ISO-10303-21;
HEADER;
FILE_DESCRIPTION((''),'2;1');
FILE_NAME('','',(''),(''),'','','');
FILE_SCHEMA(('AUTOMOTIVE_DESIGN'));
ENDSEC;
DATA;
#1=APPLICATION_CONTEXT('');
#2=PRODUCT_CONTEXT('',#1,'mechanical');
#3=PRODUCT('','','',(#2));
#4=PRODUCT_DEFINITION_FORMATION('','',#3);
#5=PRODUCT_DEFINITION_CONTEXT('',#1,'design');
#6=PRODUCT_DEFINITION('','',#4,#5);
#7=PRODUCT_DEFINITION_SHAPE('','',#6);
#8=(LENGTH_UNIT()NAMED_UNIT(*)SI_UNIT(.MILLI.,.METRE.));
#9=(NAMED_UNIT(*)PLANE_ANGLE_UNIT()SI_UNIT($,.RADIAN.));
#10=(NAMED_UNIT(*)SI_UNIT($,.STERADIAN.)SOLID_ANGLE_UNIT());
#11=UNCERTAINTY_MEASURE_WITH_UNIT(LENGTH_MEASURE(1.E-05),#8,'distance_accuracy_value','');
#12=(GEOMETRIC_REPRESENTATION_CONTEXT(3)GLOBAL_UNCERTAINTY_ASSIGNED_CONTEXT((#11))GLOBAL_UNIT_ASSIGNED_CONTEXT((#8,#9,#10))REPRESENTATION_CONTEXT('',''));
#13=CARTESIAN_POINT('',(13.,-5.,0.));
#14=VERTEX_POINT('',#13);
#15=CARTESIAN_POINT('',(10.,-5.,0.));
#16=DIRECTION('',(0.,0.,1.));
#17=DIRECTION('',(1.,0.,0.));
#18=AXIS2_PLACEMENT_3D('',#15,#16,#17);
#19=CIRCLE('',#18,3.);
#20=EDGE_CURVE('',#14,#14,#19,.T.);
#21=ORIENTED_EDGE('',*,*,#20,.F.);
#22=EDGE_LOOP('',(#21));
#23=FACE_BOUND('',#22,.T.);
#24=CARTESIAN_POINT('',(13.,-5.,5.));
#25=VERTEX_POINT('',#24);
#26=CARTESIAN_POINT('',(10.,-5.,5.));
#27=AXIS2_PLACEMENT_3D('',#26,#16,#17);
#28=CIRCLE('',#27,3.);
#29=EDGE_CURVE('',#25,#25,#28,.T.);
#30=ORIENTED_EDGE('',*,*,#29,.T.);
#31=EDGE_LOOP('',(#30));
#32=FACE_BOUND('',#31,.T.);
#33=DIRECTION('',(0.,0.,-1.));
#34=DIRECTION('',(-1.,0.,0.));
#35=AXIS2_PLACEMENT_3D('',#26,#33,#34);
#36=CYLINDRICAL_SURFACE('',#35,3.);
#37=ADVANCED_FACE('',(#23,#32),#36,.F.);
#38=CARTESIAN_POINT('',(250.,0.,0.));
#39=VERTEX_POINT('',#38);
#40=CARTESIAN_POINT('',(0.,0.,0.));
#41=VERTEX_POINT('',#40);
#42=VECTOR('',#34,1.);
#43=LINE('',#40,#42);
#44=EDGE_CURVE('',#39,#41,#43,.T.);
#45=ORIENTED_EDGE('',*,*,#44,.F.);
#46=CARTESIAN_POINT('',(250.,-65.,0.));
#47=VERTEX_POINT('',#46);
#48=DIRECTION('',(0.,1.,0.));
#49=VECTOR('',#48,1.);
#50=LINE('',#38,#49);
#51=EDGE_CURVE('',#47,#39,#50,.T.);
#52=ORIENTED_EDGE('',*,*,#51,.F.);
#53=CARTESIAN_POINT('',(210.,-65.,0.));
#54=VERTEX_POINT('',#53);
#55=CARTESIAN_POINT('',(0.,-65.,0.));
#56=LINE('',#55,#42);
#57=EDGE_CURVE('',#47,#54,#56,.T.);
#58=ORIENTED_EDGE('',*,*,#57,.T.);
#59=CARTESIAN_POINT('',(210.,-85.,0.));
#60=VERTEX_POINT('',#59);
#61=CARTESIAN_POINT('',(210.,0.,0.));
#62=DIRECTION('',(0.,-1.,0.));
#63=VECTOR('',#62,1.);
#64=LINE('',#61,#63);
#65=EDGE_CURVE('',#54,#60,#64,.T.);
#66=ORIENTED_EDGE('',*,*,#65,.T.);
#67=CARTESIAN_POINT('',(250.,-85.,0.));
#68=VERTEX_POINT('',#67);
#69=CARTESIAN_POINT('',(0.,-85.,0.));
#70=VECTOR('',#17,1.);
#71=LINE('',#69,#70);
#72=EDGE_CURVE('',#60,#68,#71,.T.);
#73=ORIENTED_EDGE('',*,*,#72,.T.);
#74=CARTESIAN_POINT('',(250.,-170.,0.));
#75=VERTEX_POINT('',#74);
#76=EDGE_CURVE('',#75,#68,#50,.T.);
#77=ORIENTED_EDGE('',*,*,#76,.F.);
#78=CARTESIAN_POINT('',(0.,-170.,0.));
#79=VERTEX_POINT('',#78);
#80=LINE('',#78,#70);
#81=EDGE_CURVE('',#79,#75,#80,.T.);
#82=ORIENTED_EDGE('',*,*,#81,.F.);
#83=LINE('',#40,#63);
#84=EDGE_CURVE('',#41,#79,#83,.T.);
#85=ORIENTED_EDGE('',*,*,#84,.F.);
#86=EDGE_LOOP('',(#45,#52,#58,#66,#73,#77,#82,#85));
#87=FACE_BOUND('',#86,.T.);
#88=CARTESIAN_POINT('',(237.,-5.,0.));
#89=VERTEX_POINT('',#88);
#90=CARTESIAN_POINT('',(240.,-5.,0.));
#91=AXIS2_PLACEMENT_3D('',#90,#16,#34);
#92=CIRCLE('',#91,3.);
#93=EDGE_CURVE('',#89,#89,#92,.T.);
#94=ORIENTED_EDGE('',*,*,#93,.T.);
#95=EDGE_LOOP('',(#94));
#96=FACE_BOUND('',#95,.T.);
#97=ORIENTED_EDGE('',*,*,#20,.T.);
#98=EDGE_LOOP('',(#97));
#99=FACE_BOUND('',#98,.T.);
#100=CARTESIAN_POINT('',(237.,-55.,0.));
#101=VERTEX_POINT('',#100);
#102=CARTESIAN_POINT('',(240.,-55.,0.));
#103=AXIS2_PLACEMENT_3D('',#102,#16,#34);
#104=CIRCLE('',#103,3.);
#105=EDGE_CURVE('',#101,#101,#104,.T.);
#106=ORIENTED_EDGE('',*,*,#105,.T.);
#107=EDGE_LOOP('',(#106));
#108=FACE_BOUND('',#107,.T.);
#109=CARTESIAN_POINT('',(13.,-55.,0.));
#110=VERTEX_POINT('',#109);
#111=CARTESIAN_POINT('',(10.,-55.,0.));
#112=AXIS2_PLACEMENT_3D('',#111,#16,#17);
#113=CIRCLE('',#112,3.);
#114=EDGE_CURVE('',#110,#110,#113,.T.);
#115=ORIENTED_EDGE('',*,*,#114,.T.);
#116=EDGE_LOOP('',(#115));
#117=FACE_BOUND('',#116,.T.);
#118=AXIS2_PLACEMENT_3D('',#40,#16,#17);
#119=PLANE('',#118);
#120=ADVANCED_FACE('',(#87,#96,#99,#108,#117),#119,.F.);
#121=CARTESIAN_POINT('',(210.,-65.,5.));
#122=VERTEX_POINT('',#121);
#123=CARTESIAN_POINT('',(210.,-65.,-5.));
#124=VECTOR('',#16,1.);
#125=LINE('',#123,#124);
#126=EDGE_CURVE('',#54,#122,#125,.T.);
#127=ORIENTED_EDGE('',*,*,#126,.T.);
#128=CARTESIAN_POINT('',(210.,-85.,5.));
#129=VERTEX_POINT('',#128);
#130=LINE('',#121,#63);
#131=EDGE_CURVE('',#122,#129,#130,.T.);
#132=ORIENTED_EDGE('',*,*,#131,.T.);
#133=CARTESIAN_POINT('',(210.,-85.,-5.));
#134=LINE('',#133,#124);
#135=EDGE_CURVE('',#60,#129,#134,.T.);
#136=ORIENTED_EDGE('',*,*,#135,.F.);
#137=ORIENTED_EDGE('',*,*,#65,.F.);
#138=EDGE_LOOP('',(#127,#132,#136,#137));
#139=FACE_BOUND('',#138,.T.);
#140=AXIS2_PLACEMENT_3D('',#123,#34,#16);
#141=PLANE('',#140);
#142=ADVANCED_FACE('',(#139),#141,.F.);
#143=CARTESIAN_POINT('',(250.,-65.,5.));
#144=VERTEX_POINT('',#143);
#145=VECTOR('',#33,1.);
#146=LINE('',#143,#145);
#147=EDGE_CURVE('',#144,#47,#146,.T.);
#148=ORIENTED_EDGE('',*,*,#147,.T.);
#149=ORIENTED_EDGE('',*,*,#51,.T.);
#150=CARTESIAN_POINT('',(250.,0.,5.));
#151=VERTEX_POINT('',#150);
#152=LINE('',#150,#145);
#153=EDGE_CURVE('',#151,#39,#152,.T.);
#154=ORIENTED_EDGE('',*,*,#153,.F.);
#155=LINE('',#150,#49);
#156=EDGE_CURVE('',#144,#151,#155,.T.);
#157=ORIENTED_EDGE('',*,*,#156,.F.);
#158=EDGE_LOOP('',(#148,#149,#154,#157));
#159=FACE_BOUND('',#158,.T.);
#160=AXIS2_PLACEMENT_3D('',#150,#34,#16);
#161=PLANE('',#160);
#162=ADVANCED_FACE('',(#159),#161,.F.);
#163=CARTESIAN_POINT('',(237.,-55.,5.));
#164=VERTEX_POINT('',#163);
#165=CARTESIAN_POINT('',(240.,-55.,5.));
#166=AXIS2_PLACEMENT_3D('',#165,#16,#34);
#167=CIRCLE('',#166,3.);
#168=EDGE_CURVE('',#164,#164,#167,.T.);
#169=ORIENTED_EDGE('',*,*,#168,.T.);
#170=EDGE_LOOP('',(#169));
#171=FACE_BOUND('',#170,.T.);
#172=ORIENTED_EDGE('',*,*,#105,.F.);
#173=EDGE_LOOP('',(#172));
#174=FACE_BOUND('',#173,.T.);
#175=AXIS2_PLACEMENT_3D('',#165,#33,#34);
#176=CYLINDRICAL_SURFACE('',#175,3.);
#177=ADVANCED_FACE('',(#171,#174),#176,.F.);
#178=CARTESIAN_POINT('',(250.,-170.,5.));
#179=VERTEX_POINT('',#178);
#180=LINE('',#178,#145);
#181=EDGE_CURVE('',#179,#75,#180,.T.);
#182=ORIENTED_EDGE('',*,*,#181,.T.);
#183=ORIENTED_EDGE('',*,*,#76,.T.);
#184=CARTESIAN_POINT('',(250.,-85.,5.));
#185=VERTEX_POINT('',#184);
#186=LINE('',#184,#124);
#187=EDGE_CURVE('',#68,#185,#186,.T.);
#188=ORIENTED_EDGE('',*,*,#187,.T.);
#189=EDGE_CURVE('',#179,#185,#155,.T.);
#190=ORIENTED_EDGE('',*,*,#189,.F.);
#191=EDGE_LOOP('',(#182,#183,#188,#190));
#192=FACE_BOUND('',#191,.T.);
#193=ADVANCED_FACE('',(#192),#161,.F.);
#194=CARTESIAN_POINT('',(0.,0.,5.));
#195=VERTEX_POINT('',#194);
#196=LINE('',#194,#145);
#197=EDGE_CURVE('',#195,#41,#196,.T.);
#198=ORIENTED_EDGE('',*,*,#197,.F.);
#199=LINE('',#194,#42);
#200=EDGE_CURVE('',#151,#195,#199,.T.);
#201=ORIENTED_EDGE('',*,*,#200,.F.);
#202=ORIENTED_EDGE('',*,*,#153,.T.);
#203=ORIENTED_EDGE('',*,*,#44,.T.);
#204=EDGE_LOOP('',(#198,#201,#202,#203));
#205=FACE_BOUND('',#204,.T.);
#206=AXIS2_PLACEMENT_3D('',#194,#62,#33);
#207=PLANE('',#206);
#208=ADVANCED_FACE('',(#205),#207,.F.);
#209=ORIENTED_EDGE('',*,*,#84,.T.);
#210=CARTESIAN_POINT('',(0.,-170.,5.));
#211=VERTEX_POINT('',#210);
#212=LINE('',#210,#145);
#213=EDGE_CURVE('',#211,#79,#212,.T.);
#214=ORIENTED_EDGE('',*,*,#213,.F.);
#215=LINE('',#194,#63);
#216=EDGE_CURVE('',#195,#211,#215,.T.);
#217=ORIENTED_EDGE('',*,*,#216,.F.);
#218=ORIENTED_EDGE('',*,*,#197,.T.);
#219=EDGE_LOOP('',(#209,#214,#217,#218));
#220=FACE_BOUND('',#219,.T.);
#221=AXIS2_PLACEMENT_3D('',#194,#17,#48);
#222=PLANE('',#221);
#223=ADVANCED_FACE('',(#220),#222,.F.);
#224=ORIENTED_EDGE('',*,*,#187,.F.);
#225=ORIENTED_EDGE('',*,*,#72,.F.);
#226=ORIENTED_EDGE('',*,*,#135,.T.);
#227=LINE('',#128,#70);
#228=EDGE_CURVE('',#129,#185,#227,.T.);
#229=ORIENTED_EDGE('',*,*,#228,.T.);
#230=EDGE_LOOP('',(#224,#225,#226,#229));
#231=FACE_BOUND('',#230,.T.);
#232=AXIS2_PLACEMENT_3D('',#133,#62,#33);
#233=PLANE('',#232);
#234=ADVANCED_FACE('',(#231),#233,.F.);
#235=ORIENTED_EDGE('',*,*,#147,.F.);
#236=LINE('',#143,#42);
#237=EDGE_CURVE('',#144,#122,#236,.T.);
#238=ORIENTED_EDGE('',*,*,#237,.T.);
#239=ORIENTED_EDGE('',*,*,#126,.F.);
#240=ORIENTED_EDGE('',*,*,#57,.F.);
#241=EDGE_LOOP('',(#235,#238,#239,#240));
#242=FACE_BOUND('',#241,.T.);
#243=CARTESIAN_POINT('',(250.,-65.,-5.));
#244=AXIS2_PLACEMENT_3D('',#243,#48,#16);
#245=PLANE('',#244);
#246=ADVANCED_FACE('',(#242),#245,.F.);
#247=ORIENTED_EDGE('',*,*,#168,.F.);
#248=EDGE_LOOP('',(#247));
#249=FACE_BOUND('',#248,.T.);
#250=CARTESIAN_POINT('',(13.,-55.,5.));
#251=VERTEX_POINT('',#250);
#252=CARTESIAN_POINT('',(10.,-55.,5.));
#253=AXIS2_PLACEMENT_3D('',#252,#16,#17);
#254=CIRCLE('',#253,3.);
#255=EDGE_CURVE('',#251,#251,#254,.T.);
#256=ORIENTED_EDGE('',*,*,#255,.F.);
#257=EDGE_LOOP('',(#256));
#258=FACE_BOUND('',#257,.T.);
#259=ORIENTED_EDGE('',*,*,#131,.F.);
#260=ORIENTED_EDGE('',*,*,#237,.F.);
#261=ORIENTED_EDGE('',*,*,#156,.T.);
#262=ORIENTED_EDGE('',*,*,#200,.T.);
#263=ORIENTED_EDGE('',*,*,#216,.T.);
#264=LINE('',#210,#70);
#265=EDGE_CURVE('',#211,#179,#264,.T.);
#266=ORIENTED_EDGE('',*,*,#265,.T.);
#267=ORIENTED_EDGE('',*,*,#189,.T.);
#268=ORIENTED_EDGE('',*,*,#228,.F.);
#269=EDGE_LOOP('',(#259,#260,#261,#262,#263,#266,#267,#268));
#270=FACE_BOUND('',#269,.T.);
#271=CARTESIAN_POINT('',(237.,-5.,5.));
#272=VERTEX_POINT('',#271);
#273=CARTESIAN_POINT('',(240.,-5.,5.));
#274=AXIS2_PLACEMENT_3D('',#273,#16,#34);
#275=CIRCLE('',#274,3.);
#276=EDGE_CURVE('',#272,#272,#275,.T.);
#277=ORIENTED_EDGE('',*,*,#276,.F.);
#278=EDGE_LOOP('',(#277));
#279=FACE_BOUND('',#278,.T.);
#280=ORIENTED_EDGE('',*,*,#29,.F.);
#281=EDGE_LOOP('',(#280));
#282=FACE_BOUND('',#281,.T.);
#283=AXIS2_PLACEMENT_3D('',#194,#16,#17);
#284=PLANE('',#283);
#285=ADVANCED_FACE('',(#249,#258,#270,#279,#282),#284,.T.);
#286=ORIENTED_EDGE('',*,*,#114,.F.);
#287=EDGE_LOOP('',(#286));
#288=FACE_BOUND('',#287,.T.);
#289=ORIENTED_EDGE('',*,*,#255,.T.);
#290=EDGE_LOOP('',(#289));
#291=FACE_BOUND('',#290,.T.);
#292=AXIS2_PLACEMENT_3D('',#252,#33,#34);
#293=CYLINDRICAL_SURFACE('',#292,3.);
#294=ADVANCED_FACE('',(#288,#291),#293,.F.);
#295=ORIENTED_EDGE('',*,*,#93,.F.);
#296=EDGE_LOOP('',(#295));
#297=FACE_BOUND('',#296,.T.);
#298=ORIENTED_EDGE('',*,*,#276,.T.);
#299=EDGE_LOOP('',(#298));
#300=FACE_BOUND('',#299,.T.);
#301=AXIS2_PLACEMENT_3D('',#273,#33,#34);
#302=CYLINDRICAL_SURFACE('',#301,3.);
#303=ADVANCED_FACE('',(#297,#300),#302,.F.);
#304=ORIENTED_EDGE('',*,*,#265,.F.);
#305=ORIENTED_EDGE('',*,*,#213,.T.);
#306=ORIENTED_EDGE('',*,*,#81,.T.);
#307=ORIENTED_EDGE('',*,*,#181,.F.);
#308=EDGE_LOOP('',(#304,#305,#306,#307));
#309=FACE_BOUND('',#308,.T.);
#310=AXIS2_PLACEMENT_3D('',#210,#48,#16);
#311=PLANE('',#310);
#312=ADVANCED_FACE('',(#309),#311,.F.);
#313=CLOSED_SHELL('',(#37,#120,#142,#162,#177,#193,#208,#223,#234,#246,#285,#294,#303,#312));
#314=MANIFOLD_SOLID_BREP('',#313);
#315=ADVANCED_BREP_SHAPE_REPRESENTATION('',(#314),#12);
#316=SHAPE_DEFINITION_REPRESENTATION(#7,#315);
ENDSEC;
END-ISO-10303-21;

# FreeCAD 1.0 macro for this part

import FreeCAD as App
import Part
import Sketcher
Q = App.Units.Quantity


def add_polygon(sketch, points):
    """Adds a closed chain of lines whose ends are joined by coincident constraints."""
    first, n = sketch.GeometryCount, len(points)
    for a, b in zip(points, points[1:] + points[:1]):
        sketch.addGeometry(Part.LineSegment(App.Vector(*a, 0), App.Vector(*b, 0)), False)
    for i in range(n):
        sketch.addConstraint(Sketcher.Constraint("Coincident", first + i, 2, first + (i + 1) % n, 1))

doc = App.newDocument("Part")
body = doc.addObject("PartDesign::Body", "Body")

# Sketch on XY plane
sketch1 = body.newObject("Sketcher::SketchObject", "Sketch")
sketch1.AttachmentSupport = (doc.getObject("XY_Plane"), [""])
sketch1.MapMode = "FlatFace"
add_polygon(sketch1, [(0, 0), (0, -170), (250, -170), (250, 0)])  # lines 0-3
sketch1.addGeometry(Part.Circle(App.Vector(10, -55, 0), App.Vector(0, 0, 1), 3), False)  # 4
sketch1.addGeometry(Part.Circle(App.Vector(240, -55, 0), App.Vector(0, 0, 1), 3), False)  # 5
sketch1.addGeometry(Part.Circle(App.Vector(10, -5, 0), App.Vector(0, 0, 1), 3), False)  # 6
sketch1.addGeometry(Part.Circle(App.Vector(240, -5, 0), App.Vector(0, 0, 1), 3), False)  # 7
sketch1.addConstraint(Sketcher.Constraint("Vertical", 0))
sketch1.addConstraint(Sketcher.Constraint("Horizontal", 1))
sketch1.addConstraint(Sketcher.Constraint("Vertical", 2))
sketch1.addConstraint(Sketcher.Constraint("Horizontal", 3))
sketch1.addConstraint(Sketcher.Constraint("Coincident", 3, 2, -1, 1))
sketch1.addConstraint(Sketcher.Constraint("Equal", 4, 5))
sketch1.addConstraint(Sketcher.Constraint("Equal", 5, 6))
sketch1.addConstraint(Sketcher.Constraint("Equal", 6, 7))
sketch1.addConstraint(Sketcher.Constraint("Horizontal", 4, 3, 5, 3))
sketch1.addConstraint(Sketcher.Constraint("Horizontal", 6, 3, 7, 3))
sketch1.addConstraint(Sketcher.Constraint("Vertical", 4, 3, 6, 3))
sketch1.addConstraint(Sketcher.Constraint("Vertical", 5, 3, 7, 3))
sketch1.addConstraint(Sketcher.Constraint("Diameter", 4, Q("6 mm")))
sketch1.addConstraint(Sketcher.Constraint("DistanceX", 1, 1, 1, 2, Q("250 mm")))
sketch1.addConstraint(Sketcher.Constraint("DistanceY", 0, 2, 0, 1, Q("170 mm")))
sketch1.addConstraint(Sketcher.Constraint("DistanceX", -1, 1, 4, 3, Q("10 mm")))
sketch1.addConstraint(Sketcher.Constraint("DistanceY", 4, 3, -1, 1, Q("55 mm")))
sketch1.addConstraint(Sketcher.Constraint("DistanceX", -1, 1, 5, 3, Q("240 mm")))
sketch1.addConstraint(Sketcher.Constraint("DistanceY", 6, 3, -1, 1, Q("5 mm")))
pad1 = body.newObject("PartDesign::Pad", "Pad")
pad1.Profile = sketch1
pad1.Length = 5

# Sketch on XY plane
sketch2 = body.newObject("Sketcher::SketchObject", "Sketch001")
sketch2.AttachmentSupport = (doc.getObject("XY_Plane"), [""])
sketch2.MapMode = "FlatFace"
sketch2.AttachmentOffset = App.Placement(App.Vector(0, 0, 5), App.Rotation())
add_polygon(sketch2, [(210, -65), (210, -85), (250, -85), (250, -65)])  # lines 0-3
sketch2.addConstraint(Sketcher.Constraint("Vertical", 0))
sketch2.addConstraint(Sketcher.Constraint("Horizontal", 1))
sketch2.addConstraint(Sketcher.Constraint("Vertical", 2))
sketch2.addConstraint(Sketcher.Constraint("Horizontal", 3))
sketch2.addConstraint(Sketcher.Constraint("DistanceX", 1, 1, 1, 2, Q("40 mm")))
sketch2.addConstraint(Sketcher.Constraint("DistanceY", 0, 2, 0, 1, Q("20 mm")))
sketch2.addConstraint(Sketcher.Constraint("DistanceX", -1, 1, 0, 2, Q("210 mm")))
sketch2.addConstraint(Sketcher.Constraint("DistanceY", 0, 2, -1, 1, Q("85 mm")))
pocket1 = body.newObject("PartDesign::Pocket", "Pocket")
pocket1.Profile = sketch2
pocket1.Length = 10

doc.recompute()
